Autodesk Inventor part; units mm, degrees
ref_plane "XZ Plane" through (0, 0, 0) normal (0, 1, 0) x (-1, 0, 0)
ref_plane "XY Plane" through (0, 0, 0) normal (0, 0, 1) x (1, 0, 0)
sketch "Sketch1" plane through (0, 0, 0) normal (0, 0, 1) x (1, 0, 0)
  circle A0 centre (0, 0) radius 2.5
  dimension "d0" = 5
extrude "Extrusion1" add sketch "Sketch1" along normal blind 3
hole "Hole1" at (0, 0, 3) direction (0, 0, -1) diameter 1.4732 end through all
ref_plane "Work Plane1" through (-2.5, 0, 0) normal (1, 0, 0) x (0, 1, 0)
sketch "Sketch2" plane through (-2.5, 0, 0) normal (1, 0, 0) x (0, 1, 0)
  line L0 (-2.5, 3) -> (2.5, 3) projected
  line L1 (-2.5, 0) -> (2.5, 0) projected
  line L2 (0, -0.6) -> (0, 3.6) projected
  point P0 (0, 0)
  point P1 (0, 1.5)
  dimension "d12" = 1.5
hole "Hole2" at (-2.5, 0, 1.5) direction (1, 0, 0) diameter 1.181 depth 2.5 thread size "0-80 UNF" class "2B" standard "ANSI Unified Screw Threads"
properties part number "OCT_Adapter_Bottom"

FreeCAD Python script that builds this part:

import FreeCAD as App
import Part
import Sketcher

V = App.Vector

doc = App.newDocument("Part")
body = doc.addObject("PartDesign::Body", "Body")

sketch1 = body.newObject("Sketcher::SketchObject", "Sketch")
sketch1.AttachmentSupport = (doc.getObject("XY_Plane"), [""])
sketch1.MapMode = "FlatFace"
sketch1.addGeometry(Part.Circle(V(0, 0, 0), V(0, 0, 1), 2.5), False)
sketch1.addConstraint([
    Sketcher.Constraint("Coincident", 0, 3, -1, 1),
    Sketcher.Constraint("Diameter", 0, 5.0),
])
pad1 = body.newObject("PartDesign::Pad", "Pad")
pad1.Profile = sketch1
pad1.Length = 3

sketch2 = body.newObject("Sketcher::SketchObject", "Sketch001")
sketch2.AttachmentSupport = (doc.getObject("XY_Plane"), [""])
sketch2.MapMode = "FlatFace"
sketch2.AttachmentOffset = App.Placement(V(0, 0, 3), App.Rotation())
sketch2.addGeometry(Part.Circle(V(0, 0, 0), V(0, 0, 1), 0.7), False)
sketch2.addConstraint([
    Sketcher.Constraint("Coincident", 0, 3, -1, 1),
    Sketcher.Constraint("Diameter", 0, 1.4732),
])
doc.recompute()
hole = body.newObject("PartDesign::Hole", "Hole")
hole.Profile = sketch2
hole.ThreadType = "None"
hole.Diameter = 1.4732
hole.DepthType = "ThroughAll"

sketch3 = body.newObject("Sketcher::SketchObject", "Sketch002")
sketch3.AttachmentSupport = (doc.getObject("YZ_Plane"), [""])
sketch3.MapMode = "FlatFace"
sketch3.AttachmentOffset = App.Placement(V(0, 0, -2.5), App.Rotation())
sketch3.addGeometry(Part.Circle(V(0, 1.5, 0), V(0, 0, 1), 0.6), False)
sketch3.addConstraint([
    Sketcher.Constraint("PointOnObject", 0, 3, -2),
    Sketcher.Constraint("Diameter", 0, 1.181),
    Sketcher.Constraint("DistanceY", -1, 1, 0, 3, 1.5),
])
doc.recompute()
hole2 = body.newObject("PartDesign::Hole", "Hole001")
hole2.Profile = sketch3
hole2.ThreadType = "None"
hole2.Diameter = 1.181
hole2.DepthType = "Dimension"
hole2.Depth = 2.5
hole2.DrillPoint = "Flat"
hole2.Reversed = True

doc.recompute()
